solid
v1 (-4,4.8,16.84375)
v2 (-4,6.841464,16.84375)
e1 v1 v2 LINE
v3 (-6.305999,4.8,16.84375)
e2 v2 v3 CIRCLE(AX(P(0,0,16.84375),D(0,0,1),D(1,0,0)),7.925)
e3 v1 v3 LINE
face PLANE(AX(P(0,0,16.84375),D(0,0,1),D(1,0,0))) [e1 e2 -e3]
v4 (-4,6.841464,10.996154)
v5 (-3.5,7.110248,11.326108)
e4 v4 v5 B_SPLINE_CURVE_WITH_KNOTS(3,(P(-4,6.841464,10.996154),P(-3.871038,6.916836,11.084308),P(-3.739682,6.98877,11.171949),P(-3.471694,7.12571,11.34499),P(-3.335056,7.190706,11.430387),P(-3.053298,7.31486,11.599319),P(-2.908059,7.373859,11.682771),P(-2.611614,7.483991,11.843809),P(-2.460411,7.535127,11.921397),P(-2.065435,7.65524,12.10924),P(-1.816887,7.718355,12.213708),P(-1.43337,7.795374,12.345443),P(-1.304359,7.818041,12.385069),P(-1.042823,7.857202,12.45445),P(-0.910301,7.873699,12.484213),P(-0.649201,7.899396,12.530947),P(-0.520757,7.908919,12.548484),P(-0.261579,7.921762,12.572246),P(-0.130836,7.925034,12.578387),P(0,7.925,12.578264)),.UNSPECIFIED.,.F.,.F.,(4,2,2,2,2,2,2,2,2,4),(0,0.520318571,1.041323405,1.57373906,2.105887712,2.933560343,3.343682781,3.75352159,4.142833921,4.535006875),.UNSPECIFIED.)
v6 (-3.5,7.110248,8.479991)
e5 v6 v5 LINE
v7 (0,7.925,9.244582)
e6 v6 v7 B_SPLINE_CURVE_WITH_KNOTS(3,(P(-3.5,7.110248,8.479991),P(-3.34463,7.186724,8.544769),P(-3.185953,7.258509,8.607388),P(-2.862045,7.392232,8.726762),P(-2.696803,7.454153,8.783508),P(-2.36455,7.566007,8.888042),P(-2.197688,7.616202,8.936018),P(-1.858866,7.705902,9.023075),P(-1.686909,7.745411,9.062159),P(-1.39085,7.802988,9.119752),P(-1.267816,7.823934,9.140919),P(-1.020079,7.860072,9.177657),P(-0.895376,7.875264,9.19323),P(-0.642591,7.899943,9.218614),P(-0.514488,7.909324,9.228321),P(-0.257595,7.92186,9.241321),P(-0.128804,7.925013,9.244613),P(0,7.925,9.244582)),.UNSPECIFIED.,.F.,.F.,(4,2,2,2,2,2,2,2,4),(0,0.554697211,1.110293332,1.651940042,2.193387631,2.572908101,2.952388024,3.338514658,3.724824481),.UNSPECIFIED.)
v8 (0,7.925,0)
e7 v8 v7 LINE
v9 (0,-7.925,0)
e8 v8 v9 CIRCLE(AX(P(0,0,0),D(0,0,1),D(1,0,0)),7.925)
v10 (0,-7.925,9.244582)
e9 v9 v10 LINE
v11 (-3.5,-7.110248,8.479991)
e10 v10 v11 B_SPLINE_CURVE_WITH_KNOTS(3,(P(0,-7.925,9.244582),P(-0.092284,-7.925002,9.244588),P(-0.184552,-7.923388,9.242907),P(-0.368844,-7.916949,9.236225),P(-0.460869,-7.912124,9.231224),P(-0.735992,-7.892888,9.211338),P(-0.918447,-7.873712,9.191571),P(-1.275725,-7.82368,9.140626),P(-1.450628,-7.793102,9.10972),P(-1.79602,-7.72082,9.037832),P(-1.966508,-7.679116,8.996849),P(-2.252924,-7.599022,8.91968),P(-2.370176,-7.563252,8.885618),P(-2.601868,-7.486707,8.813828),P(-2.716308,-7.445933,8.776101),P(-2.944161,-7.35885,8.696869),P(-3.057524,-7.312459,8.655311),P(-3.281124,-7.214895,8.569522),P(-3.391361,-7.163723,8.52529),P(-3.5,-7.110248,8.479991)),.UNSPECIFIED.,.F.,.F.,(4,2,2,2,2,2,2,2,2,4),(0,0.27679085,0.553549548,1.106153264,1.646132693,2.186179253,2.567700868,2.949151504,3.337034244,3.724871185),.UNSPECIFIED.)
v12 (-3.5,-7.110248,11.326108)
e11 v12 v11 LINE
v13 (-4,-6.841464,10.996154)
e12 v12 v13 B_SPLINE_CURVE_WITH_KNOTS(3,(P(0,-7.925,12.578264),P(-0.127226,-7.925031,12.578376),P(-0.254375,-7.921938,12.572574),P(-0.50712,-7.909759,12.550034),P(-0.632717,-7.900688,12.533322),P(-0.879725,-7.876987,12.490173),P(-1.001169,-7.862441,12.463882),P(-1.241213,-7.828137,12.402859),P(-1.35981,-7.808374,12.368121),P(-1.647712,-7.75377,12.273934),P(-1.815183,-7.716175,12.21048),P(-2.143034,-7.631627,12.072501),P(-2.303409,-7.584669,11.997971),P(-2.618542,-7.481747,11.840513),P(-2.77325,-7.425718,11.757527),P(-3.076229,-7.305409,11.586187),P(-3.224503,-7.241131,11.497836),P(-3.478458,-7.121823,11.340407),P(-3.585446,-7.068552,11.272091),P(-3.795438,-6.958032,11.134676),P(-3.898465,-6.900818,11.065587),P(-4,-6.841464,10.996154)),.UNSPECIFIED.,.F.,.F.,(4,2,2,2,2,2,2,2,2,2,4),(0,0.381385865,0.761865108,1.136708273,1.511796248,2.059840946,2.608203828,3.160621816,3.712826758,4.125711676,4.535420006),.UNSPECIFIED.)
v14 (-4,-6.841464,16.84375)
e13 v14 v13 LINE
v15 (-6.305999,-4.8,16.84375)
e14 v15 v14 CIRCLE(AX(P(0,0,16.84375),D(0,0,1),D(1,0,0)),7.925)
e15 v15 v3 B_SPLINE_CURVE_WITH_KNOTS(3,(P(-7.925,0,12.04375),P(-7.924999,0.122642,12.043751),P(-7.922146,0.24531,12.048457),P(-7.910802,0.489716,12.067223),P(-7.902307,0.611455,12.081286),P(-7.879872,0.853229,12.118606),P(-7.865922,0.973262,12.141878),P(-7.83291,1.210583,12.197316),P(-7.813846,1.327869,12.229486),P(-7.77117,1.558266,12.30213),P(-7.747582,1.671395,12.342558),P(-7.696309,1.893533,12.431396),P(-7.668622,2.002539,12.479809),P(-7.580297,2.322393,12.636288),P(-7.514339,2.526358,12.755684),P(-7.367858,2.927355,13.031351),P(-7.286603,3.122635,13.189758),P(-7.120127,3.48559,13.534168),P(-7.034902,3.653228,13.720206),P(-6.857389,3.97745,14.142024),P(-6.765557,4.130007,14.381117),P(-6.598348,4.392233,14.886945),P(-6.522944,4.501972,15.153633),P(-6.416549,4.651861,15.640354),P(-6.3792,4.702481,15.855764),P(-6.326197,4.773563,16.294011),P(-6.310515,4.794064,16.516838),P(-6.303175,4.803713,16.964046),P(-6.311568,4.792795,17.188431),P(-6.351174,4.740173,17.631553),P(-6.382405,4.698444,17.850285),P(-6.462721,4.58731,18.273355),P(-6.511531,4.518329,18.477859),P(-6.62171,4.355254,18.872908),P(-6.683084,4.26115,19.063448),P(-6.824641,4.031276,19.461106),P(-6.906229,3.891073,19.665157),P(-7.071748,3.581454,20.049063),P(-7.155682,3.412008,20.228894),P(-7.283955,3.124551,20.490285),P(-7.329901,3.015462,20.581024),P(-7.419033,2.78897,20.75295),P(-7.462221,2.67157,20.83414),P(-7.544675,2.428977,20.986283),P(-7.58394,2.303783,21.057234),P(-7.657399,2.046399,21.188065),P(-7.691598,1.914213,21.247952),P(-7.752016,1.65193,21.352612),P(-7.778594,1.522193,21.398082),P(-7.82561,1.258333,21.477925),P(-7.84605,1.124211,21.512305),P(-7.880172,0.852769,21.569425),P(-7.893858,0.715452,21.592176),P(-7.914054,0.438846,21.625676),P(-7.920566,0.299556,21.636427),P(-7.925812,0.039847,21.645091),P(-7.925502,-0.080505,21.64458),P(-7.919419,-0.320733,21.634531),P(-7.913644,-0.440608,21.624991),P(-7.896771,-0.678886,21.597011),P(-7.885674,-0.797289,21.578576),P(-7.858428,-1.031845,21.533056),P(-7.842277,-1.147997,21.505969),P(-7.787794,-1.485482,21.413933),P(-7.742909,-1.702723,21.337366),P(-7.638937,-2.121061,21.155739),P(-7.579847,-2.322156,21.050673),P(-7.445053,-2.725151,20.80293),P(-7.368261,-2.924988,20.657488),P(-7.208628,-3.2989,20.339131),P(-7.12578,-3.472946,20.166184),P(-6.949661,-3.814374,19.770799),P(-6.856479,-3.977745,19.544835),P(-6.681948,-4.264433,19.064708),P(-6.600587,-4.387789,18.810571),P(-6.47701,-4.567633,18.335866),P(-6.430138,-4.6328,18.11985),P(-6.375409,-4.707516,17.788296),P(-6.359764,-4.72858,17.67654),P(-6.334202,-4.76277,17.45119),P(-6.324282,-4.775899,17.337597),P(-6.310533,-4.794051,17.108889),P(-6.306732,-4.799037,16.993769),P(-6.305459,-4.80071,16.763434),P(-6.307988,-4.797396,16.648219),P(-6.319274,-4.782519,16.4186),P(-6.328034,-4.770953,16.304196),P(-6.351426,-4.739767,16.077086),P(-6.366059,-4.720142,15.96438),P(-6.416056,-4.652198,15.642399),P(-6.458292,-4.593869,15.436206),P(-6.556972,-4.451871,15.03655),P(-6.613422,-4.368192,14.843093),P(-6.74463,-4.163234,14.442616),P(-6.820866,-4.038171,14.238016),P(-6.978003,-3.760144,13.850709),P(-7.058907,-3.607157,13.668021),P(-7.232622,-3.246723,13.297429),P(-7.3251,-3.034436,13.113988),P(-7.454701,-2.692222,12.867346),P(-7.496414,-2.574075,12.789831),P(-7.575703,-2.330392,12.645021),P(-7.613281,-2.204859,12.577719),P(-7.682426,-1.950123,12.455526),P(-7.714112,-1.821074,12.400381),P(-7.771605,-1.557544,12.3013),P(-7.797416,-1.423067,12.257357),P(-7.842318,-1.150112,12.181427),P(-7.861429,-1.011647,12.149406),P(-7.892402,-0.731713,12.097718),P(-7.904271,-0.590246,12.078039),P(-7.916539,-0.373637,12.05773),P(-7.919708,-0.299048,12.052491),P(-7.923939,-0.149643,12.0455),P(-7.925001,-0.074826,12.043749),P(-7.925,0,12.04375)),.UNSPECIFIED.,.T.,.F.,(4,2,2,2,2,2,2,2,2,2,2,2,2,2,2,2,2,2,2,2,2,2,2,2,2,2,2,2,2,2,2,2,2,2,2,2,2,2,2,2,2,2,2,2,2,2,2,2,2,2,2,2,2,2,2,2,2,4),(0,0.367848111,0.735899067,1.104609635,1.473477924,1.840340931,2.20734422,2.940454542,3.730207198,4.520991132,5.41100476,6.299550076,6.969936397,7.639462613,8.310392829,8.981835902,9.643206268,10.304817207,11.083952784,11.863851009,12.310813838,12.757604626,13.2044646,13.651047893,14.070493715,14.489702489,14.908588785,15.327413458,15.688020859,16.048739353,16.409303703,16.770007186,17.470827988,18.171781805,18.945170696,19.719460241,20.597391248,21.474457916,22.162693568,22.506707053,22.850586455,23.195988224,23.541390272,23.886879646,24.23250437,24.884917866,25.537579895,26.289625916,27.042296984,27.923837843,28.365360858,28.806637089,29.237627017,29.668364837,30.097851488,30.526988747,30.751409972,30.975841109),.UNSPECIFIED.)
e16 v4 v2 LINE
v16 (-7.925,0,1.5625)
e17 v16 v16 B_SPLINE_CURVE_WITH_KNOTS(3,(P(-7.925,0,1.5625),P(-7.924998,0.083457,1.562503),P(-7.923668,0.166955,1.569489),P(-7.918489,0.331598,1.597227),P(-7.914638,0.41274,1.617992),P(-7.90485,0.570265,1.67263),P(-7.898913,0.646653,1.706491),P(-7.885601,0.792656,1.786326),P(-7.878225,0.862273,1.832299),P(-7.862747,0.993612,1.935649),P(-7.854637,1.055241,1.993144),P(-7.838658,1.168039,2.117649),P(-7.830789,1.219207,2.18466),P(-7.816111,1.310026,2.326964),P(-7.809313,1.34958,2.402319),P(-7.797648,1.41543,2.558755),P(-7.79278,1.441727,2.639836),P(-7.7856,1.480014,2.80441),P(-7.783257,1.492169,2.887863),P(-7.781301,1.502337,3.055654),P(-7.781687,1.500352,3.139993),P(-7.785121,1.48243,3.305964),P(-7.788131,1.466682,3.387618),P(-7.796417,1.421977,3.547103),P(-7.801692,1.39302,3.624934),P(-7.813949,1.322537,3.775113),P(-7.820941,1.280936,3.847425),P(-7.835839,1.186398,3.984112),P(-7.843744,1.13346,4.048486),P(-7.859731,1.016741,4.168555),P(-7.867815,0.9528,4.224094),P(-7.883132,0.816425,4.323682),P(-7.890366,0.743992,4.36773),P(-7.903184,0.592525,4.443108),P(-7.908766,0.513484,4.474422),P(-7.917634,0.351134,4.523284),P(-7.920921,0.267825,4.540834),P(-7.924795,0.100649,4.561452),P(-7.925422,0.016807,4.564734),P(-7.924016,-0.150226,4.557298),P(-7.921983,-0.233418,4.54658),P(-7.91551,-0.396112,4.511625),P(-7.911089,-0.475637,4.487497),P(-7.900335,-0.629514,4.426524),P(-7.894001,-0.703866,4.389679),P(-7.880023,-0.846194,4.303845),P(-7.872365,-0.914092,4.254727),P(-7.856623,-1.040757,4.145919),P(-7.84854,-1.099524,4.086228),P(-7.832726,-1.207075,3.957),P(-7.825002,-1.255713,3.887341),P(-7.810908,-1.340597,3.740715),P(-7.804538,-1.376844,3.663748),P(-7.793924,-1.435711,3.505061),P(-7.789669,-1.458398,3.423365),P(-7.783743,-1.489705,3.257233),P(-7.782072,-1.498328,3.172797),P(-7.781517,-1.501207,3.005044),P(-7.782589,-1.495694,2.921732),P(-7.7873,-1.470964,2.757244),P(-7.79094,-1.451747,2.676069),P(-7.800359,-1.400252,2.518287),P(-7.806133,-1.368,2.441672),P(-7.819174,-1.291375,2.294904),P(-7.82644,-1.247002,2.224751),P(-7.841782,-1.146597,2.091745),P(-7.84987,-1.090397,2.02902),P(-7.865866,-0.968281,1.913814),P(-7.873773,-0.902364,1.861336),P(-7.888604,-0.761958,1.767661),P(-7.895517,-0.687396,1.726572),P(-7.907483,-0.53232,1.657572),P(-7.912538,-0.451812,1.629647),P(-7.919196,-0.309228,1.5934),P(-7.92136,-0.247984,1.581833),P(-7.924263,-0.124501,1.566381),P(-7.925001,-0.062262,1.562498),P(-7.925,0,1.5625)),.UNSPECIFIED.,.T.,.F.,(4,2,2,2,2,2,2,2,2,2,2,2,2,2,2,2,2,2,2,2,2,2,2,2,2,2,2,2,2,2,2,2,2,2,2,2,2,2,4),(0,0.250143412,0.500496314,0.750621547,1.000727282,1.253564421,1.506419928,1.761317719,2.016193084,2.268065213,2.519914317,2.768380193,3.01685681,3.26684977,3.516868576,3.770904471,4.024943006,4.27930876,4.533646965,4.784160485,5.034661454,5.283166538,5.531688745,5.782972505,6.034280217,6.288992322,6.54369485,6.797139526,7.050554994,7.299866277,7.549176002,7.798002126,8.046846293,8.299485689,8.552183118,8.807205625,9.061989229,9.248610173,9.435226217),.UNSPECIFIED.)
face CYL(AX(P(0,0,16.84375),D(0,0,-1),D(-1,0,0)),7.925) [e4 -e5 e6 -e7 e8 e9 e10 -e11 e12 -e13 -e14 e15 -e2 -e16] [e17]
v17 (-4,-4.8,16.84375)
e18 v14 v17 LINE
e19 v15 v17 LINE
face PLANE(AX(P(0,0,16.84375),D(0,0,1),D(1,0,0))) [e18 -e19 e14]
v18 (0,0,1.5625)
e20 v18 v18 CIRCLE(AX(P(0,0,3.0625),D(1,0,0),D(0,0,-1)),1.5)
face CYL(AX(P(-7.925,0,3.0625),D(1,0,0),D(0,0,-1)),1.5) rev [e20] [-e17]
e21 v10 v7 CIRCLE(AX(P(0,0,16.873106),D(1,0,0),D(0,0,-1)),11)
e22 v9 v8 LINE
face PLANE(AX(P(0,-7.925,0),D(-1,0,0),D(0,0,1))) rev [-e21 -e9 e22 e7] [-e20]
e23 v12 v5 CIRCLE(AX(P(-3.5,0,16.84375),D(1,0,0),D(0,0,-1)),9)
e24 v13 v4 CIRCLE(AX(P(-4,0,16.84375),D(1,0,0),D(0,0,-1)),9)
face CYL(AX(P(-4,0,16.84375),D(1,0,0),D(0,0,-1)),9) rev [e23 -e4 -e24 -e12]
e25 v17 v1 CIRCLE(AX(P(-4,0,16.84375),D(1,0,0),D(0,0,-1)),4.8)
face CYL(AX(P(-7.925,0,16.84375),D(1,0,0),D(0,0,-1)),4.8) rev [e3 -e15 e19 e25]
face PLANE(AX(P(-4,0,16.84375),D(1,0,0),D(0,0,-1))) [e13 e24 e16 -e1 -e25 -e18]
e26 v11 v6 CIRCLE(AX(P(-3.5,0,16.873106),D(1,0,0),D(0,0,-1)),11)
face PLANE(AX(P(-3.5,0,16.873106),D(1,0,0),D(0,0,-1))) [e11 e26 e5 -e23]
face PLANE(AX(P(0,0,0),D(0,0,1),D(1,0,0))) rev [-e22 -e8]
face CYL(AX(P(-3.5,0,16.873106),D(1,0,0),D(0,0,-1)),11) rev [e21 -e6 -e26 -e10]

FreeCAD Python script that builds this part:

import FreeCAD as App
import Part
import Sketcher
from FreeCAD import Vector


def add_polygon(sketch, points):
    """Adds a closed chain of lines whose ends are joined by coincident constraints."""
    first, n = sketch.GeometryCount, len(points)
    for a, b in zip(points, points[1:] + points[:1]):
        sketch.addGeometry(Part.LineSegment(App.Vector(*a, 0), App.Vector(*b, 0)), False)
    for i in range(n):
        sketch.addConstraint(Sketcher.Constraint("Coincident", first + i, 2, first + (i + 1) % n, 1))

doc = App.newDocument("Part")
body = doc.addObject("PartDesign::Body", "Body")

# Sketch on XY plane
sketch1 = body.newObject("Sketcher::SketchObject", "Sketch")
sketch1.AttachmentSupport = (doc.getObject("XY_Plane"), [""])
sketch1.MapMode = "FlatFace"
sketch1.addGeometry(Part.Circle(Vector(0, 0, 0), Vector(0, 0, 1), 8), False)
sketch1.addConstraint(Sketcher.Constraint("Coincident", 0, 3, -1, 1))
sketch1.addConstraint(Sketcher.Constraint("Diameter", 0, 15.85))
pad1 = body.newObject("PartDesign::Pad", "Pad")
pad1.Profile = sketch1
pad1.Length = 16.84375

# Sketch on XZ plane
sketch2 = body.newObject("Sketcher::SketchObject", "Sketch001")
sketch2.AttachmentSupport = (doc.getObject("XZ_Plane"), [""])
sketch2.MapMode = "FlatFace"
add_polygon(sketch2, [(0, 0), (0, 17), (8, 17), (8, 0)])  # lines 0-3
sketch2.addConstraint(Sketcher.Constraint("Vertical", 0))
sketch2.addConstraint(Sketcher.Constraint("Horizontal", 1))
sketch2.addConstraint(Sketcher.Constraint("Vertical", 2))
sketch2.addConstraint(Sketcher.Constraint("Horizontal", 3))
sketch2.addConstraint(Sketcher.Constraint("Coincident", 3, 2, -1, 1))
sketch2.addConstraint(Sketcher.Constraint("DistanceY", 0, 1, 0, 2, 17.0))
sketch2.addConstraint(Sketcher.Constraint("DistanceX", 1, 1, 1, 2, 7.925))
pocket1 = body.newObject("PartDesign::Pocket", "Pocket")
pocket1.Profile = sketch2
pocket1.Type = "ThroughAll"
pocket1.Midplane = True

# Sketch on YZ plane
sketch3 = body.newObject("Sketcher::SketchObject", "Sketch002")
sketch3.AttachmentSupport = (doc.getObject("YZ_Plane"), [""])
sketch3.MapMode = "FlatFace"
sketch3.addGeometry(Part.Circle(Vector(0, 17, 0), Vector(0, 0, 1), 11), False)
sketch3.addConstraint(Sketcher.Constraint("PointOnObject", 0, 3, -2))
sketch3.addConstraint(Sketcher.Constraint("Diameter", 0, 22.0))
sketch3.addConstraint(Sketcher.Constraint("DistanceY", -1, 1, 0, 3, 16.873106))
pocket2 = body.newObject("PartDesign::Pocket", "Pocket001")
pocket2.Profile = sketch3
pocket2.Length = 3.5

# Sketch on YZ plane
sketch4 = body.newObject("Sketcher::SketchObject", "Sketch003")
sketch4.AttachmentSupport = (doc.getObject("YZ_Plane"), [""])
sketch4.MapMode = "FlatFace"
sketch4.addGeometry(Part.Circle(Vector(0, 17, 0), Vector(0, 0, 1), 9), False)
sketch4.addConstraint(Sketcher.Constraint("PointOnObject", 0, 3, -2))
sketch4.addConstraint(Sketcher.Constraint("Diameter", 0, 18.0))
sketch4.addConstraint(Sketcher.Constraint("DistanceY", -1, 1, 0, 3, 16.84375))
pocket3 = body.newObject("PartDesign::Pocket", "Pocket002")
pocket3.Profile = sketch4
pocket3.Length = 4

# Sketch on YZ plane
sketch5 = body.newObject("Sketcher::SketchObject", "Sketch004")
sketch5.AttachmentSupport = (doc.getObject("YZ_Plane"), [""])
sketch5.MapMode = "FlatFace"
sketch5.addGeometry(Part.Circle(Vector(0, 16.8, 0), Vector(0, 0, 1), 4.8), False)
sketch5.addGeometry(Part.Circle(Vector(0, 3.1, 0), Vector(0, 0, 1), 1.5), False)
sketch5.addConstraint(Sketcher.Constraint("PointOnObject", 0, 3, -2))
sketch5.addConstraint(Sketcher.Constraint("PointOnObject", 1, 3, -2))
sketch5.addConstraint(Sketcher.Constraint("Diameter", 1, 3.0))
sketch5.addConstraint(Sketcher.Constraint("Diameter", 0, 9.6))
sketch5.addConstraint(Sketcher.Constraint("DistanceY", -1, 1, 1, 3, 3.0625))
sketch5.addConstraint(Sketcher.Constraint("DistanceY", -1, 1, 0, 3, 16.84375))
pocket4 = body.newObject("PartDesign::Pocket", "Pocket003")
pocket4.Profile = sketch5
pocket4.Type = "ThroughAll"

doc.recompute()
